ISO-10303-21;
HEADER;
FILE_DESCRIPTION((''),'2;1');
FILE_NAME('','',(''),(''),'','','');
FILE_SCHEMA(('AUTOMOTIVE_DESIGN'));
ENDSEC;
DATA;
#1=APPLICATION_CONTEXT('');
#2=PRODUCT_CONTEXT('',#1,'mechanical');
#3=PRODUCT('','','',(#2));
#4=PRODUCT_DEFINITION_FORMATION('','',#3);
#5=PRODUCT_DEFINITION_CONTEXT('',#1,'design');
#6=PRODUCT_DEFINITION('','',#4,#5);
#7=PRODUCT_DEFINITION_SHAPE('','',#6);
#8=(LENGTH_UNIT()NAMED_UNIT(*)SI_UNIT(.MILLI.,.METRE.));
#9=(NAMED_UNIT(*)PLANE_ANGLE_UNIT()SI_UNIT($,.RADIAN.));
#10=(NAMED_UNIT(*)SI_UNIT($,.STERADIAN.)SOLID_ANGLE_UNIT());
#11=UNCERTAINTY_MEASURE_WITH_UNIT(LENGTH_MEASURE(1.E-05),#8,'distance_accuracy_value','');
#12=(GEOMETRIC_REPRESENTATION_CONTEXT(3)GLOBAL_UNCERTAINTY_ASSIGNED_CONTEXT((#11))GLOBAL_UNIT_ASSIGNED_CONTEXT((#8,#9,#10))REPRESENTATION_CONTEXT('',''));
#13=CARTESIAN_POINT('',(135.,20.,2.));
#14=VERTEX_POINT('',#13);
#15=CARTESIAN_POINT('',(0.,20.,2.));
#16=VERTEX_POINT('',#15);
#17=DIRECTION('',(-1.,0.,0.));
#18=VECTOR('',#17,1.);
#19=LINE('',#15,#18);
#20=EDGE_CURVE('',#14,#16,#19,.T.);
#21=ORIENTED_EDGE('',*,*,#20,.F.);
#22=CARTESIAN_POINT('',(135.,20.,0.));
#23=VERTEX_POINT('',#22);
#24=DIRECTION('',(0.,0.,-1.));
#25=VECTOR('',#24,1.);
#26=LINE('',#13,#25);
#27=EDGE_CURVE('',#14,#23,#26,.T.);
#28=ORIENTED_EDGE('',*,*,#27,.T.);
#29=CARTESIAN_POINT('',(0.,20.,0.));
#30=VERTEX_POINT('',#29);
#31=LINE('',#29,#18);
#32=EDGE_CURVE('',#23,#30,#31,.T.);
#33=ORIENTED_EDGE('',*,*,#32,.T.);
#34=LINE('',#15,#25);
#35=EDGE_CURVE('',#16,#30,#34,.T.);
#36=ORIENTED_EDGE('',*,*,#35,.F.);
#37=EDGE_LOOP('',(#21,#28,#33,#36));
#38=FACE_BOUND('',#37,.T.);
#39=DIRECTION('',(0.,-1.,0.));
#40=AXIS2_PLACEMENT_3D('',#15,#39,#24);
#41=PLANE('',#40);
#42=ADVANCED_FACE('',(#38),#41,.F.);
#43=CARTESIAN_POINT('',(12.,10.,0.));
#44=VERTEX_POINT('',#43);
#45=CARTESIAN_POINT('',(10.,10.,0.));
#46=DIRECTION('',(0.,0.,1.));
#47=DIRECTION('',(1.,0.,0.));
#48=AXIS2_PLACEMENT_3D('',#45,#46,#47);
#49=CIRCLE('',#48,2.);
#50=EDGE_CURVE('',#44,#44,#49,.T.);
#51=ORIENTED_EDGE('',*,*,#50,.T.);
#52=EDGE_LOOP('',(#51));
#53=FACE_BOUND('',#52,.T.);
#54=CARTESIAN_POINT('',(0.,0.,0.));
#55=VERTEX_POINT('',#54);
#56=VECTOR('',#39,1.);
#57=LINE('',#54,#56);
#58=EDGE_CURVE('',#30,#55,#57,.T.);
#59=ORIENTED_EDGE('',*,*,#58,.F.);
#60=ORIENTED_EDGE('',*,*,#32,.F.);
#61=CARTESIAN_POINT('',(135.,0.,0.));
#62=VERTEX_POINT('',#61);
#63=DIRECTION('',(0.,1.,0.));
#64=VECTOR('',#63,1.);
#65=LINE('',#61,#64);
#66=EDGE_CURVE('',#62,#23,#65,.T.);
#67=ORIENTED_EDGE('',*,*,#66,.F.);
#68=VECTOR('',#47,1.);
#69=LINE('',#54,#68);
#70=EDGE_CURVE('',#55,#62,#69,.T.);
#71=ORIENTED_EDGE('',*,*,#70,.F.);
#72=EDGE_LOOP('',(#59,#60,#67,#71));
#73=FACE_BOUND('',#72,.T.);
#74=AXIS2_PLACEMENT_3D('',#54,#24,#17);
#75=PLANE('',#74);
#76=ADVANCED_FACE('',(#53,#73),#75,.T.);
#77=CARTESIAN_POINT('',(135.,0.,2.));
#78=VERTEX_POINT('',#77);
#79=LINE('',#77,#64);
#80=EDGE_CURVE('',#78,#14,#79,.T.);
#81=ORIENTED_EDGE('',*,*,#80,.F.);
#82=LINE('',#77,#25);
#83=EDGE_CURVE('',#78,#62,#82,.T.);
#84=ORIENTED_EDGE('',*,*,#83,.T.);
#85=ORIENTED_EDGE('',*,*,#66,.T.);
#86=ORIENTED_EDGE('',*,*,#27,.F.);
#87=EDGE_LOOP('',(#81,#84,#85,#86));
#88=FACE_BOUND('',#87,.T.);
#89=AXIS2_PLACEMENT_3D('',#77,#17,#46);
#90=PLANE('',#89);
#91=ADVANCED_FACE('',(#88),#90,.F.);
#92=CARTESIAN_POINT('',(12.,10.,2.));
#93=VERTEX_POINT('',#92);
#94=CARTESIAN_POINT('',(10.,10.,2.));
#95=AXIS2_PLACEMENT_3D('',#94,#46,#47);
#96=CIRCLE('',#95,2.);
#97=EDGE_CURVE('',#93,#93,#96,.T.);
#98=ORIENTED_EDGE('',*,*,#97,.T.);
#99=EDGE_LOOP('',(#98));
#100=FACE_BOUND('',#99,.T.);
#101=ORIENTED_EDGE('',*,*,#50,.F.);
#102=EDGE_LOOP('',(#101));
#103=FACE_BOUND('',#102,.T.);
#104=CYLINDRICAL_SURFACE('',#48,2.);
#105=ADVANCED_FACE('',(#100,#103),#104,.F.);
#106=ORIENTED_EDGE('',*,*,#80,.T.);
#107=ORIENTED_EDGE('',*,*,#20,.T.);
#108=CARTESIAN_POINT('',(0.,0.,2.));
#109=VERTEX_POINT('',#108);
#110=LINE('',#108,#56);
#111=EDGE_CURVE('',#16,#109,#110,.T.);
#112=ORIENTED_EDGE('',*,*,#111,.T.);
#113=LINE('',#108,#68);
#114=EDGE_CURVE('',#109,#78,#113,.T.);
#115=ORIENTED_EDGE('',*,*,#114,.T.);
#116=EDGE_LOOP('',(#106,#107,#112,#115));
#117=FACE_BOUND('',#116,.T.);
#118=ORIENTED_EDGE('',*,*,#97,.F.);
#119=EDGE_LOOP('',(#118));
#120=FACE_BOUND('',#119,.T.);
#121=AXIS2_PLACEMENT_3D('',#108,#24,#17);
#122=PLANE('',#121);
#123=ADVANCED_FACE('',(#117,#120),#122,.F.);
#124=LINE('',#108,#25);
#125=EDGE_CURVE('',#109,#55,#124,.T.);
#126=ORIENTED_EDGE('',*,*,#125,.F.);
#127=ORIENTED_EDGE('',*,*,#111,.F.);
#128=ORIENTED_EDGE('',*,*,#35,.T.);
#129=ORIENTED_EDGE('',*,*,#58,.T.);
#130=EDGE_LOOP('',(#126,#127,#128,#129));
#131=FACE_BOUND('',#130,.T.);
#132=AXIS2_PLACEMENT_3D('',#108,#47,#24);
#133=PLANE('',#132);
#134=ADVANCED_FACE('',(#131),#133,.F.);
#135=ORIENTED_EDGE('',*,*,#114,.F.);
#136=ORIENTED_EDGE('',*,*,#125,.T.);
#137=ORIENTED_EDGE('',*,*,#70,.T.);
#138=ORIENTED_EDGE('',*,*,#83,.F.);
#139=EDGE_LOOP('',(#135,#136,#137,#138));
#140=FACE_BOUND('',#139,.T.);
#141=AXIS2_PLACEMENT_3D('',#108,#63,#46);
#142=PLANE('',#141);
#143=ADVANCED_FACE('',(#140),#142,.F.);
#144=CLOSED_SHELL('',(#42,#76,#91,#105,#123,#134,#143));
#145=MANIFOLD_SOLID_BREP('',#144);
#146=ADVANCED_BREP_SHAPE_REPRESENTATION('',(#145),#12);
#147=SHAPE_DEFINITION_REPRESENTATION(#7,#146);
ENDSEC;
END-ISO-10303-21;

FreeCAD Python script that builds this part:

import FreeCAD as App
import Part
import Sketcher

V = App.Vector


def add_polygon(sketch, points):
    """Adds a closed chain of lines whose ends are joined by coincident constraints."""
    first, n = sketch.GeometryCount, len(points)
    for a, b in zip(points, points[1:] + points[:1]):
        sketch.addGeometry(Part.LineSegment(App.Vector(*a, 0), App.Vector(*b, 0)), False)
    for i in range(n):
        sketch.addConstraint(Sketcher.Constraint("Coincident", first + i, 2, first + (i + 1) % n, 1))

doc = App.newDocument("Part")
params = doc.addObject("Spreadsheet::Sheet", "Params")
for row, (alias, value) in enumerate([
    ("sketch1_width", "135 mm"),
    ("sketch1_height", "20 mm"),
    ("pad1_length", "2 mm"),
    ("sketch2_diameter", "4 mm"),
], start=1):
    params.set(f"A{row}", alias)
    params.set(f"B{row}", "=" + value)
    params.setAlias(f"B{row}", alias)

body = doc.addObject("PartDesign::Body", "Body")

sketch1 = doc.addObject("Sketcher::SketchObject", "Sketch")
body.addObject(sketch1)
sketch1.AttachmentSupport = (doc.XY_Plane, [""])
sketch1.MapMode = "FlatFace"
add_polygon(sketch1, [(0, 20), (0, 0), (135, 0), (135, 20)])
sketch1.addConstraint([
    Sketcher.Constraint("Vertical", 0),
    Sketcher.Constraint("Horizontal", 1),
    Sketcher.Constraint("Vertical", 2),
    Sketcher.Constraint("Horizontal", 3),
    Sketcher.Constraint("Coincident", 0, 2, -1, 1),
    Sketcher.Constraint("DistanceX", 1, 1, 1, 2, 135.0),
    Sketcher.Constraint("DistanceY", 0, 2, 0, 1, 20.0),
])
sketch1.setExpression("Constraints[9]", "Params.sketch1_width")
sketch1.setExpression("Constraints[10]", "Params.sketch1_height")
pad1 = doc.addObject("PartDesign::Pad", "Pad")
body.addObject(pad1)
pad1.Profile = sketch1
pad1.setExpression("Length", "Params.pad1_length")

sketch2 = doc.addObject("Sketcher::SketchObject", "Sketch001")
body.addObject(sketch2)
sketch2.AttachmentSupport = (doc.XY_Plane, [""])
sketch2.MapMode = "FlatFace"
sketch2.AttachmentOffset = App.Placement(V(0, 0, 2), App.Rotation())
sketch2.addGeometry(Part.Circle(V(10, 10, 0), V(0, 0, 1), 2), False)
sketch2.addConstraint([
    Sketcher.Constraint("Diameter", 0, 4.0),
    Sketcher.Constraint("DistanceX", -1, 1, 0, 3, 10.0),
    Sketcher.Constraint("DistanceY", -1, 1, 0, 3, 10.0),
])
sketch2.setExpression("Constraints[0]", "Params.sketch2_diameter")
pocket1 = doc.addObject("PartDesign::Pocket", "Pocket")
body.addObject(pocket1)
pocket1.Profile = sketch2
pocket1.Type = "ThroughAll"

doc.recompute()
